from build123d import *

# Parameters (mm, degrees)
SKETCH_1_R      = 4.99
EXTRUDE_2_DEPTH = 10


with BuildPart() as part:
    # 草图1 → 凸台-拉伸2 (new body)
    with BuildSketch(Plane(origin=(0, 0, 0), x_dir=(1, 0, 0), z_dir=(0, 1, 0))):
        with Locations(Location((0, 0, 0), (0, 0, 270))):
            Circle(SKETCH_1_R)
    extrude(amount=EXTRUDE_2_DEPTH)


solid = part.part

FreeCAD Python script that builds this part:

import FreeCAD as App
import Part
import Sketcher

doc = App.newDocument("Part")
body = doc.addObject("PartDesign::Body", "Body")

# Sketch on XZ plane
sketch1 = doc.addObject("Sketcher::SketchObject", "Sketch")
body.addObject(sketch1)
sketch1.AttachmentSupport = (doc.XZ_Plane, [""])
sketch1.MapMode = "FlatFace"
sketch1.addGeometry(Part.Circle(App.Vector(0, 0, 0), App.Vector(0, 0, 1), 4.99), False)
sketch1.addConstraint([
    Sketcher.Constraint("Coincident", 0, 3, -1, 1),
    Sketcher.Constraint("Diameter", 0, 9.98),
])
pad1 = doc.addObject("PartDesign::Pad", "Pad")
body.addObject(pad1)
pad1.Profile = sketch1
pad1.Length = 10
pad1.Reversed = True

doc.recompute()
